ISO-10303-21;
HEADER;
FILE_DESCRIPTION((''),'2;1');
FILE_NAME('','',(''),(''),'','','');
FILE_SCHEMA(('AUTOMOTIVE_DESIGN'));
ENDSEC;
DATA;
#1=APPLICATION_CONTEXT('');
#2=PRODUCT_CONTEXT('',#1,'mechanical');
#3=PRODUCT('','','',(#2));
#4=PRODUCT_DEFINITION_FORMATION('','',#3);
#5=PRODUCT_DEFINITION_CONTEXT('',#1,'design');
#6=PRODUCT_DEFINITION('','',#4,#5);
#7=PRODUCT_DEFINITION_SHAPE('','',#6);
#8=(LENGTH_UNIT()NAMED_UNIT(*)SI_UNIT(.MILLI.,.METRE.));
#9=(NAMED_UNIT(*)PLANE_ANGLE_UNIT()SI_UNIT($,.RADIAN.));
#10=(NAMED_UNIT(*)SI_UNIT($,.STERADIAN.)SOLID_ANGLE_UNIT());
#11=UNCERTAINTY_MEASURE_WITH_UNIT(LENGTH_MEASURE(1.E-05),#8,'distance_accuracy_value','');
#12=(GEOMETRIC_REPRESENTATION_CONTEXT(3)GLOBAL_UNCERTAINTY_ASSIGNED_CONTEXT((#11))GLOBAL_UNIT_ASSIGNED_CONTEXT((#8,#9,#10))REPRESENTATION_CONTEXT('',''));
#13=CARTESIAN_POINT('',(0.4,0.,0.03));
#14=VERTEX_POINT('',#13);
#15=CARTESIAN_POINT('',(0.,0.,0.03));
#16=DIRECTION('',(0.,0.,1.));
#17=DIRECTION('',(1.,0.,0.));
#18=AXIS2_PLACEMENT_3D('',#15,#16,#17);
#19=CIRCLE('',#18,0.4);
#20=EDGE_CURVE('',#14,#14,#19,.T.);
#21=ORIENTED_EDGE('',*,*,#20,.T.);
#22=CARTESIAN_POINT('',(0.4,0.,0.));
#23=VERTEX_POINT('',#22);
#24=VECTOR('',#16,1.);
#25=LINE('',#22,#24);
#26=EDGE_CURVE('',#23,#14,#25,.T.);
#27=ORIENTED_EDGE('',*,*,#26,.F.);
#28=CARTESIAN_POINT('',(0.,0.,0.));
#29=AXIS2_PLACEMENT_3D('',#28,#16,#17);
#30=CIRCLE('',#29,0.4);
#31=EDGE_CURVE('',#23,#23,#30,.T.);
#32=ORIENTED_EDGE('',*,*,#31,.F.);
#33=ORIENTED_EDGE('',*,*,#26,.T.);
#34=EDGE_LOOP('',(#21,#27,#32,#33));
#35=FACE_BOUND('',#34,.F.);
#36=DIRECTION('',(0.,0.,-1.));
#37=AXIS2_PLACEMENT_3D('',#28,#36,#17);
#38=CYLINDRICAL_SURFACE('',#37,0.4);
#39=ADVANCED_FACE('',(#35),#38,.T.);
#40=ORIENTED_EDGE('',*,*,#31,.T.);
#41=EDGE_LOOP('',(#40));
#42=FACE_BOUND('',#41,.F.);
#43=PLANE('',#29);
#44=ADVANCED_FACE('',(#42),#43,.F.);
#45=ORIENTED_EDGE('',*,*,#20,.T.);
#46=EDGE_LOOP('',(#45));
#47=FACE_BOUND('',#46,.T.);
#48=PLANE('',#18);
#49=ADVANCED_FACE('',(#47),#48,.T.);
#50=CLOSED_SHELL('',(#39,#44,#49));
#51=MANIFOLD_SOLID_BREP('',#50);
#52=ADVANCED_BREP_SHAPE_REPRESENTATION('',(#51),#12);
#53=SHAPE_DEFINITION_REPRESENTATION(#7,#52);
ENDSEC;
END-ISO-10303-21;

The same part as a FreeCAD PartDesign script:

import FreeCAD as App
import Part
import Sketcher
Q = App.Units.Quantity

doc = App.newDocument("Part")
body = doc.addObject("PartDesign::Body", "Body")

# Sketch on XY plane
sketch1 = body.newObject("Sketcher::SketchObject", "Sketch")
sketch1.AttachmentSupport = (doc.getObject("XY_Plane"), [""])
sketch1.MapMode = "FlatFace"
sketch1.addGeometry(Part.Circle(App.Vector(0, 0, 0), App.Vector(0, 0, 1), 0.4), False)
sketch1.addConstraint([
    Sketcher.Constraint("Coincident", 0, 3, -1, 1),
    Sketcher.Constraint("Diameter", 0, Q("0.8 mm")),
])
pad1 = body.newObject("PartDesign::Pad", "Pad")
pad1.Profile = sketch1
pad1.Length = 0.03

doc.recompute()
